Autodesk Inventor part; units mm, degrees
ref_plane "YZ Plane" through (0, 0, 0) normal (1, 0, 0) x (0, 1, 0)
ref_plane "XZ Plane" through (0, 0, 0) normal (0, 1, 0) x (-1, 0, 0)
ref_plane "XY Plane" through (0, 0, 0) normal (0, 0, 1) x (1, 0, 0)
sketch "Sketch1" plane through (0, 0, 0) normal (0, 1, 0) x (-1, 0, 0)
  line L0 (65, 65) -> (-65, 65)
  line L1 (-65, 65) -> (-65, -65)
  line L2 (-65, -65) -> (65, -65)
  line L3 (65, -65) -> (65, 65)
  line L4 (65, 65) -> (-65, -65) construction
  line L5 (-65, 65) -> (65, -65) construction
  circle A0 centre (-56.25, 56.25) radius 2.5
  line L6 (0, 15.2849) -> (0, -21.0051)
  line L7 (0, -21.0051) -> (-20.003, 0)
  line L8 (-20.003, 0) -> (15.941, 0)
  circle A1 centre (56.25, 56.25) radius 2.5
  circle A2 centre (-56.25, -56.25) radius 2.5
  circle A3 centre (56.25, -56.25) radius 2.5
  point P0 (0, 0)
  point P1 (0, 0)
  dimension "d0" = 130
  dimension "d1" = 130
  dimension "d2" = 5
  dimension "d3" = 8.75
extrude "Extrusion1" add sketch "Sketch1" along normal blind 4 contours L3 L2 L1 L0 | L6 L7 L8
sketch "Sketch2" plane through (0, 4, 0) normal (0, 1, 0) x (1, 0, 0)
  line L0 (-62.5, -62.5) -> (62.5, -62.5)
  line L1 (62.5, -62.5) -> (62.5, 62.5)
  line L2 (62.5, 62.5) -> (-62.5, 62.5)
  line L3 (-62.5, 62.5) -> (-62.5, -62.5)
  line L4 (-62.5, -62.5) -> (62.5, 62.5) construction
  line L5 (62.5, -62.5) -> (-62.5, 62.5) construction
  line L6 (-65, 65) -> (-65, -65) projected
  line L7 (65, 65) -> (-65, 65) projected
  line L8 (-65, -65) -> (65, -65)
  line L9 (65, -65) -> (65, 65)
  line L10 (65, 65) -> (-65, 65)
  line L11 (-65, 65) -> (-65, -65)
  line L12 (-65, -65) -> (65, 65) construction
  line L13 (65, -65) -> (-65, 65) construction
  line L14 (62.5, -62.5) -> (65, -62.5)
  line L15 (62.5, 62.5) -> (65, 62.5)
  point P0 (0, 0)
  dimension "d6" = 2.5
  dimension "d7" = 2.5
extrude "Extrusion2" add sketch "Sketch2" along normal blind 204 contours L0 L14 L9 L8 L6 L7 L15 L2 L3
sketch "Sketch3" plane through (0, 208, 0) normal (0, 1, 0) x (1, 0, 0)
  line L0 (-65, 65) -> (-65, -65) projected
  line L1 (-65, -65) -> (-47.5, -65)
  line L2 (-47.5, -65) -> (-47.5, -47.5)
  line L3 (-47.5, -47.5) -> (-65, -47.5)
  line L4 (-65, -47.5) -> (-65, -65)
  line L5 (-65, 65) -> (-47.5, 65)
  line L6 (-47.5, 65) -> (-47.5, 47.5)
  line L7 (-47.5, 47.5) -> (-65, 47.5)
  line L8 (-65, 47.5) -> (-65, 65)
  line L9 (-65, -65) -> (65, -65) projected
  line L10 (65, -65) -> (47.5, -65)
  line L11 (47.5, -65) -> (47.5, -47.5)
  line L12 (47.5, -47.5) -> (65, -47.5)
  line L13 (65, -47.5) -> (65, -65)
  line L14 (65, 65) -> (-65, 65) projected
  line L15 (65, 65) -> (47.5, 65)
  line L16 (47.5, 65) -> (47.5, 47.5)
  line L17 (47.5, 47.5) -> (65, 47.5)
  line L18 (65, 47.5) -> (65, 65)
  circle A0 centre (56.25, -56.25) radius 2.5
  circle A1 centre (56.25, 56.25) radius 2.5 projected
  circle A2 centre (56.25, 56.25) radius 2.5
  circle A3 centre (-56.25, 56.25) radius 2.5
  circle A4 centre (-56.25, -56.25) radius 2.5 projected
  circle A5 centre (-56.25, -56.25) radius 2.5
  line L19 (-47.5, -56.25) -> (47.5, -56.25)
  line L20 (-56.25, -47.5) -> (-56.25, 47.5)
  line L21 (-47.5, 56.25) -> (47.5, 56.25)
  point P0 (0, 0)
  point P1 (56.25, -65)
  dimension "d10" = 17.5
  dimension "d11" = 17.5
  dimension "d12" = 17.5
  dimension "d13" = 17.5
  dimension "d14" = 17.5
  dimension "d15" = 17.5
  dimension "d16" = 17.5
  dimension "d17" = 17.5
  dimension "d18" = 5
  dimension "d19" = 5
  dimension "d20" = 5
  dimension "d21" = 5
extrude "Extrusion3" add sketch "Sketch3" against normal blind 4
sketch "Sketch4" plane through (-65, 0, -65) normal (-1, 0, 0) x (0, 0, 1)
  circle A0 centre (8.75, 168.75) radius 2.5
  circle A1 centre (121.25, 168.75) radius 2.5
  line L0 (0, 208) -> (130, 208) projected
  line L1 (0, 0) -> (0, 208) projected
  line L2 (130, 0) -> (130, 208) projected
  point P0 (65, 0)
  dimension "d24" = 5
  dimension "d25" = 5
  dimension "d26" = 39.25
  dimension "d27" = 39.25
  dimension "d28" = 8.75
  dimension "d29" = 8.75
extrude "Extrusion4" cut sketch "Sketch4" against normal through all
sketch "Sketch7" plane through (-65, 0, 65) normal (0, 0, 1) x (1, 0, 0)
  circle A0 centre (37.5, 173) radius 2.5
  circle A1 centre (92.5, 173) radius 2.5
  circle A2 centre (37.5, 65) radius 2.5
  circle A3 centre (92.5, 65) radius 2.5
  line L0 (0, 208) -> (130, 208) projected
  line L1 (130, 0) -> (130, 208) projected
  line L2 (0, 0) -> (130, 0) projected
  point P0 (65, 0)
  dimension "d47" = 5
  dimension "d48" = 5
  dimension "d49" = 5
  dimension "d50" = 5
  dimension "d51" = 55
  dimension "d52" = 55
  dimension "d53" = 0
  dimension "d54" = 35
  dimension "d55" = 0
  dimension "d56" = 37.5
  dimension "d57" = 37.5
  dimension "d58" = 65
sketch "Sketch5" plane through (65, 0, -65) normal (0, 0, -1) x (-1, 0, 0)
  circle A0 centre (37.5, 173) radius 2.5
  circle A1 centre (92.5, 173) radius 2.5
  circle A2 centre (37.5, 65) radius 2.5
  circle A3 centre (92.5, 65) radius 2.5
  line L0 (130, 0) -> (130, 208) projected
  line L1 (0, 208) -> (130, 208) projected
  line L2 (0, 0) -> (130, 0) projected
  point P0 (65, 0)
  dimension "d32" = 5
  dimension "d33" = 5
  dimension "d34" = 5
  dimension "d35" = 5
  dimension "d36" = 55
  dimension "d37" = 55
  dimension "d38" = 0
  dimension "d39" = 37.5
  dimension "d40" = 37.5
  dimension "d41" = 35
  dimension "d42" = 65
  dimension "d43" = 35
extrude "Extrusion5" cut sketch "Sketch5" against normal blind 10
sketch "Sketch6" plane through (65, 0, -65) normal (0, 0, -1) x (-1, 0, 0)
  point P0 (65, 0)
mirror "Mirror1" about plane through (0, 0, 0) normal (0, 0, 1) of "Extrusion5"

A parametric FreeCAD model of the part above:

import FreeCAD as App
import Part
import Sketcher
Q = App.Units.Quantity

doc = App.newDocument("Part")
body = doc.addObject("PartDesign::Body", "Body")

# Sketch on XZ plane
sketch1 = doc.addObject("Sketcher::SketchObject", "Sketch")
body.addObject(sketch1)
sketch1.AttachmentSupport = (doc.XZ_Plane, [""])
sketch1.MapMode = "FlatFace"
sketch1.addGeometry([
    Part.LineSegment(App.Vector(-65, -65, 0), App.Vector(-65, 65, 0)),  # 0
    Part.LineSegment(App.Vector(-65, 65, 0), App.Vector(65, 65, 0)),  # 1
    Part.LineSegment(App.Vector(65, 65, 0), App.Vector(65, -65, 0)),  # 2
    Part.LineSegment(App.Vector(65, -65, 0), App.Vector(-65, -65, 0)),  # 3
    Part.Circle(App.Vector(56.2, -56.2, 0), App.Vector(0, 0, 1), 2.5),  # 4
    Part.Circle(App.Vector(-56.2, -56.2, 0), App.Vector(0, 0, 1), 2.5),  # 5
    Part.Circle(App.Vector(56.2, 56.2, 0), App.Vector(0, 0, 1), 2.5),  # 6
    Part.Circle(App.Vector(-56.2, 56.2, 0), App.Vector(0, 0, 1), 2.5),  # 7
], False)
sketch1.addConstraint([
    Sketcher.Constraint("Coincident", 0, 2, 1, 1),
    Sketcher.Constraint("Coincident", 1, 2, 2, 1),
    Sketcher.Constraint("Coincident", 2, 2, 3, 1),
    Sketcher.Constraint("Coincident", 3, 2, 0, 1),
    Sketcher.Constraint("Vertical", 0),
    Sketcher.Constraint("Horizontal", 1),
    Sketcher.Constraint("Vertical", 2),
    Sketcher.Constraint("Horizontal", 3),
    Sketcher.Constraint("Equal", 4, 5),
    Sketcher.Constraint("Equal", 5, 6),
    Sketcher.Constraint("Equal", 6, 7),
    Sketcher.Constraint("Symmetric", 5, 3, 6, 3, -1, 1),
    Sketcher.Constraint("Symmetric", 4, 3, 7, 3, -1, 1),
    Sketcher.Constraint("Symmetric", 0, 2, 2, 2, -1, 1),
    Sketcher.Constraint("Symmetric", 4, 3, 5, 3, -2),
    Sketcher.Constraint("Equal", 3, 0),
    Sketcher.Constraint("Diameter", 4, Q("5 mm")),
    Sketcher.Constraint("DistanceX", 1, 1, 1, 2, Q("130 mm")),
    Sketcher.Constraint("DistanceX", 0, 2, 7, 3, Q("8.75 mm")),
    Sketcher.Constraint("DistanceY", 7, 3, 0, 2, Q("8.75 mm")),
])
pad1 = doc.addObject("PartDesign::Pad", "Pad")
body.addObject(pad1)
pad1.Profile = sketch1
pad1.Length = 4
pad1.Reversed = True

# Sketch on XZ plane
sketch2 = doc.addObject("Sketcher::SketchObject", "Sketch001")
body.addObject(sketch2)
sketch2.AttachmentSupport = (doc.XZ_Plane, [""])
sketch2.MapMode = "FlatFace"
sketch2.AttachmentOffset = App.Placement(App.Vector(0, 0, -4), App.Rotation())
sketch2.addGeometry([
    Part.LineSegment(App.Vector(65, 62.5, 0), App.Vector(-62.5, 62.5, 0)),  # 0
    Part.LineSegment(App.Vector(-62.5, 62.5, 0), App.Vector(-62.5, -62.5, 0)),  # 1
    Part.LineSegment(App.Vector(-62.5, -62.5, 0), App.Vector(65, -62.5, 0)),  # 2
    Part.LineSegment(App.Vector(65, -62.5, 0), App.Vector(65, -65, 0)),  # 3
    Part.LineSegment(App.Vector(65, -65, 0), App.Vector(-65, -65, 0)),  # 4
    Part.LineSegment(App.Vector(-65, -65, 0), App.Vector(-65, 65, 0)),  # 5
    Part.LineSegment(App.Vector(-65, 65, 0), App.Vector(65, 65, 0)),  # 6
    Part.LineSegment(App.Vector(65, 65, 0), App.Vector(65, 62.5, 0)),  # 7
], False)
sketch2.addConstraint([
    Sketcher.Constraint("Coincident", 0, 2, 1, 1),
    Sketcher.Constraint("Coincident", 1, 2, 2, 1),
    Sketcher.Constraint("Coincident", 2, 2, 3, 1),
    Sketcher.Constraint("Coincident", 3, 2, 4, 1),
    Sketcher.Constraint("Coincident", 4, 2, 5, 1),
    Sketcher.Constraint("Coincident", 5, 2, 6, 1),
    Sketcher.Constraint("Coincident", 6, 2, 7, 1),
    Sketcher.Constraint("Coincident", 7, 2, 0, 1),
    Sketcher.Constraint("Horizontal", 0),
    Sketcher.Constraint("Vertical", 1),
    Sketcher.Constraint("Horizontal", 2),
    Sketcher.Constraint("Vertical", 3),
    Sketcher.Constraint("Horizontal", 4),
    Sketcher.Constraint("Vertical", 5),
    Sketcher.Constraint("Horizontal", 6),
    Sketcher.Constraint("Vertical", 7),
    Sketcher.Constraint("Symmetric", 3, 2, 5, 2, -1, 1),
    Sketcher.Constraint("Symmetric", 2, 2, 7, 2, -1),
    Sketcher.Constraint("Equal", 6, 5),
    Sketcher.Constraint("DistanceY", 3, 2, 3, 1, Q("2.5 mm")),
    Sketcher.Constraint("DistanceX", 4, 2, 1, 2, Q("2.5 mm")),
    Sketcher.Constraint("DistanceX", 4, 2, 4, 1, Q("130 mm")),
])
pad2 = doc.addObject("PartDesign::Pad", "Pad001")
body.addObject(pad2)
pad2.Profile = sketch2
pad2.Length = 204
pad2.Reversed = True

# Sketch on XZ plane
sketch3 = doc.addObject("Sketcher::SketchObject", "Sketch002")
body.addObject(sketch3)
sketch3.AttachmentSupport = (doc.XZ_Plane, [""])
sketch3.MapMode = "FlatFace"
sketch3.AttachmentOffset = App.Placement(App.Vector(0, 0, -208), App.Rotation())
sketch3.addGeometry([
    Part.LineSegment(App.Vector(-65, -65, 0), App.Vector(-65, 65, 0)),  # 0
    Part.LineSegment(App.Vector(-65, 65, 0), App.Vector(65, 65, 0)),  # 1
    Part.LineSegment(App.Vector(65, 65, 0), App.Vector(65, 47.5, 0)),  # 2
    Part.LineSegment(App.Vector(65, 47.5, 0), App.Vector(47.5, 47.5, 0)),  # 3
    Part.LineSegment(App.Vector(47.5, 47.5, 0), App.Vector(47.5, 56.2, 0)),  # 4
    Part.LineSegment(App.Vector(47.5, 56.2, 0), App.Vector(-47.5, 56.2, 0)),  # 5
    Part.LineSegment(App.Vector(-47.5, 56.2, 0), App.Vector(-47.5, 47.5, 0)),  # 6
    Part.LineSegment(App.Vector(-47.5, 47.5, 0), App.Vector(-56.2, 47.5, 0)),  # 7
    Part.LineSegment(App.Vector(-56.2, 47.5, 0), App.Vector(-56.2, -47.5, 0)),  # 8
    Part.LineSegment(App.Vector(-56.2, -47.5, 0), App.Vector(-47.5, -47.5, 0)),  # 9
    Part.LineSegment(App.Vector(-47.5, -47.5, 0), App.Vector(-47.5, -56.2, 0)),  # 10
    Part.LineSegment(App.Vector(-47.5, -56.2, 0), App.Vector(47.5, -56.2, 0)),  # 11
    Part.LineSegment(App.Vector(47.5, -56.2, 0), App.Vector(47.5, -47.5, 0)),  # 12
    Part.LineSegment(App.Vector(47.5, -47.5, 0), App.Vector(65, -47.5, 0)),  # 13
    Part.LineSegment(App.Vector(65, -47.5, 0), App.Vector(65, -65, 0)),  # 14
    Part.LineSegment(App.Vector(65, -65, 0), App.Vector(-65, -65, 0)),  # 15
    Part.Circle(App.Vector(-56.2, -56.2, 0), App.Vector(0, 0, 1), 2.5),  # 16
    Part.Circle(App.Vector(56.2, -56.2, 0), App.Vector(0, 0, 1), 2.5),  # 17
    Part.Circle(App.Vector(-56.2, 56.2, 0), App.Vector(0, 0, 1), 2.5),  # 18
    Part.Circle(App.Vector(56.2, 56.2, 0), App.Vector(0, 0, 1), 2.5),  # 19
], False)
sketch3.addConstraint([
    Sketcher.Constraint("Coincident", 0, 2, 1, 1),
    Sketcher.Constraint("Coincident", 1, 2, 2, 1),
    Sketcher.Constraint("Coincident", 2, 2, 3, 1),
    Sketcher.Constraint("Coincident", 3, 2, 4, 1),
    Sketcher.Constraint("Coincident", 4, 2, 5, 1),
    Sketcher.Constraint("Coincident", 5, 2, 6, 1),
    Sketcher.Constraint("Coincident", 6, 2, 7, 1),
    Sketcher.Constraint("Coincident", 7, 2, 8, 1),
    Sketcher.Constraint("Coincident", 8, 2, 9, 1),
    Sketcher.Constraint("Coincident", 9, 2, 10, 1),
    Sketcher.Constraint("Coincident", 10, 2, 11, 1),
    Sketcher.Constraint("Coincident", 11, 2, 12, 1),
    Sketcher.Constraint("Coincident", 12, 2, 13, 1),
    Sketcher.Constraint("Coincident", 13, 2, 14, 1),
    Sketcher.Constraint("Coincident", 14, 2, 15, 1),
    Sketcher.Constraint("Coincident", 15, 2, 0, 1),
    Sketcher.Constraint("Vertical", 0),
    Sketcher.Constraint("Horizontal", 1),
    Sketcher.Constraint("Vertical", 2),
    Sketcher.Constraint("Horizontal", 3),
    Sketcher.Constraint("Vertical", 4),
    Sketcher.Constraint("Horizontal", 5),
    Sketcher.Constraint("Vertical", 6),
    Sketcher.Constraint("Horizontal", 7),
    Sketcher.Constraint("Vertical", 8),
    Sketcher.Constraint("Horizontal", 9),
    Sketcher.Constraint("Vertical", 10),
    Sketcher.Constraint("Horizontal", 11),
    Sketcher.Constraint("Vertical", 12),
    Sketcher.Constraint("Horizontal", 13),
    Sketcher.Constraint("Vertical", 14),
    Sketcher.Constraint("Horizontal", 15),
    Sketcher.Constraint("Equal", 16, 17),
    Sketcher.Constraint("Equal", 17, 18),
    Sketcher.Constraint("Equal", 18, 19),
    Sketcher.Constraint("Symmetric", 17, 3, 18, 3, -1, 1),
    Sketcher.Constraint("Symmetric", 16, 3, 19, 3, -1, 1),
    Sketcher.Constraint("Symmetric", 3, 2, 9, 2, -1, 1),
    Sketcher.Constraint("Symmetric", 5, 2, 11, 2, -1, 1),
    Sketcher.Constraint("Symmetric", 0, 2, 14, 2, -1, 1),
    Sketcher.Constraint("Symmetric", 16, 3, 17, 3, -2),
    Sketcher.Constraint("Symmetric", 3, 2, 6, 2, -2),
    Sketcher.Constraint("Symmetric", 2, 2, 13, 2, -1),
    Sketcher.Constraint("Horizontal", 19, 3, 4, 2),
    Sketcher.Constraint("Vertical", 18, 3, 7, 2),
    Sketcher.Constraint("Equal", 15, 0),
    Sketcher.Constraint("Equal", 13, 2),
    Sketcher.Constraint("Equal", 9, 4),
    Sketcher.Constraint("Diameter", 16, Q("5 mm")),
    Sketcher.Constraint("DistanceX", 3, 2, 3, 1, Q("17.5 mm")),
    Sketcher.Constraint("DistanceX", 1, 1, 1, 2, Q("130 mm")),
    Sketcher.Constraint("DistanceX", 7, 2, 7, 1, Q("8.75 mm")),
])
pad3 = doc.addObject("PartDesign::Pad", "Pad002")
body.addObject(pad3)
pad3.Profile = sketch3
pad3.Length = 4

# Sketch on YZ plane
sketch4 = doc.addObject("Sketcher::SketchObject", "Sketch003")
body.addObject(sketch4)
sketch4.AttachmentSupport = (doc.YZ_Plane, [""])
sketch4.MapMode = "FlatFace"
sketch4.AttachmentOffset = App.Placement(App.Vector(0, 0, -65), App.Rotation())
sketch4.addGeometry([
    Part.Circle(App.Vector(168.8, -56.2, 0), App.Vector(0, 0, 1), 2.5),
    Part.Circle(App.Vector(168.8, 56.2, 0), App.Vector(0, 0, 1), 2.5),
], False)
sketch4.addConstraint([
    Sketcher.Constraint("Equal", 0, 1),
    Sketcher.Constraint("Symmetric", 0, 3, 1, 3, -1),
    Sketcher.Constraint("Diameter", 0, Q("5 mm")),
    Sketcher.Constraint("DistanceY", 0, 3, 1, 3, Q("112.5 mm")),
    Sketcher.Constraint("DistanceX", -1, 1, 0, 3, Q("168.75 mm")),
])
pocket1 = doc.addObject("PartDesign::Pocket", "Pocket")
body.addObject(pocket1)
pocket1.Profile = sketch4
pocket1.Type = "ThroughAll"
pocket1.Reversed = True

# Sketch on XY plane
sketch5 = doc.addObject("Sketcher::SketchObject", "Sketch004")
body.addObject(sketch5)
sketch5.AttachmentSupport = (doc.XY_Plane, [""])
sketch5.MapMode = "FlatFace"
sketch5.AttachmentOffset = App.Placement(App.Vector(0, 0, -65), App.Rotation())
sketch5.addGeometry([
    Part.Circle(App.Vector(27.5, 173, 0), App.Vector(0, 0, 1), 2.5),
    Part.Circle(App.Vector(-27.5, 173, 0), App.Vector(0, 0, 1), 2.5),
    Part.Circle(App.Vector(27.5, 65, 0), App.Vector(0, 0, 1), 2.5),
    Part.Circle(App.Vector(-27.5, 65, 0), App.Vector(0, 0, 1), 2.5),
], False)
sketch5.addConstraint([
    Sketcher.Constraint("Equal", 0, 1),
    Sketcher.Constraint("Equal", 1, 2),
    Sketcher.Constraint("Equal", 2, 3),
    Sketcher.Constraint("Symmetric", 0, 3, 1, 3, -2),
    Sketcher.Constraint("Symmetric", 2, 3, 3, 3, -2),
    Sketcher.Constraint("Vertical", 0, 3, 2, 3),
    Sketcher.Constraint("Diameter", 0, Q("5 mm")),
    Sketcher.Constraint("DistanceY", -1, 1, 2, 3, Q("65 mm")),
    Sketcher.Constraint("DistanceX", 1, 3, 0, 3, Q("55 mm")),
    Sketcher.Constraint("DistanceY", -1, 1, 0, 3, Q("173 mm")),
])
pocket2 = doc.addObject("PartDesign::Pocket", "Pocket001")
body.addObject(pocket2)
pocket2.Profile = sketch5
pocket2.Length = 10
pocket2.Reversed = True
doc.recompute()

mirrored = doc.addObject("PartDesign::Mirrored", "Mirrored")
body.addObject(mirrored)
mirrored.Originals = [pocket2]
mirrored.MirrorPlane = (doc.XY_Plane, [""])
body.Tip = mirrored

doc.recompute()
